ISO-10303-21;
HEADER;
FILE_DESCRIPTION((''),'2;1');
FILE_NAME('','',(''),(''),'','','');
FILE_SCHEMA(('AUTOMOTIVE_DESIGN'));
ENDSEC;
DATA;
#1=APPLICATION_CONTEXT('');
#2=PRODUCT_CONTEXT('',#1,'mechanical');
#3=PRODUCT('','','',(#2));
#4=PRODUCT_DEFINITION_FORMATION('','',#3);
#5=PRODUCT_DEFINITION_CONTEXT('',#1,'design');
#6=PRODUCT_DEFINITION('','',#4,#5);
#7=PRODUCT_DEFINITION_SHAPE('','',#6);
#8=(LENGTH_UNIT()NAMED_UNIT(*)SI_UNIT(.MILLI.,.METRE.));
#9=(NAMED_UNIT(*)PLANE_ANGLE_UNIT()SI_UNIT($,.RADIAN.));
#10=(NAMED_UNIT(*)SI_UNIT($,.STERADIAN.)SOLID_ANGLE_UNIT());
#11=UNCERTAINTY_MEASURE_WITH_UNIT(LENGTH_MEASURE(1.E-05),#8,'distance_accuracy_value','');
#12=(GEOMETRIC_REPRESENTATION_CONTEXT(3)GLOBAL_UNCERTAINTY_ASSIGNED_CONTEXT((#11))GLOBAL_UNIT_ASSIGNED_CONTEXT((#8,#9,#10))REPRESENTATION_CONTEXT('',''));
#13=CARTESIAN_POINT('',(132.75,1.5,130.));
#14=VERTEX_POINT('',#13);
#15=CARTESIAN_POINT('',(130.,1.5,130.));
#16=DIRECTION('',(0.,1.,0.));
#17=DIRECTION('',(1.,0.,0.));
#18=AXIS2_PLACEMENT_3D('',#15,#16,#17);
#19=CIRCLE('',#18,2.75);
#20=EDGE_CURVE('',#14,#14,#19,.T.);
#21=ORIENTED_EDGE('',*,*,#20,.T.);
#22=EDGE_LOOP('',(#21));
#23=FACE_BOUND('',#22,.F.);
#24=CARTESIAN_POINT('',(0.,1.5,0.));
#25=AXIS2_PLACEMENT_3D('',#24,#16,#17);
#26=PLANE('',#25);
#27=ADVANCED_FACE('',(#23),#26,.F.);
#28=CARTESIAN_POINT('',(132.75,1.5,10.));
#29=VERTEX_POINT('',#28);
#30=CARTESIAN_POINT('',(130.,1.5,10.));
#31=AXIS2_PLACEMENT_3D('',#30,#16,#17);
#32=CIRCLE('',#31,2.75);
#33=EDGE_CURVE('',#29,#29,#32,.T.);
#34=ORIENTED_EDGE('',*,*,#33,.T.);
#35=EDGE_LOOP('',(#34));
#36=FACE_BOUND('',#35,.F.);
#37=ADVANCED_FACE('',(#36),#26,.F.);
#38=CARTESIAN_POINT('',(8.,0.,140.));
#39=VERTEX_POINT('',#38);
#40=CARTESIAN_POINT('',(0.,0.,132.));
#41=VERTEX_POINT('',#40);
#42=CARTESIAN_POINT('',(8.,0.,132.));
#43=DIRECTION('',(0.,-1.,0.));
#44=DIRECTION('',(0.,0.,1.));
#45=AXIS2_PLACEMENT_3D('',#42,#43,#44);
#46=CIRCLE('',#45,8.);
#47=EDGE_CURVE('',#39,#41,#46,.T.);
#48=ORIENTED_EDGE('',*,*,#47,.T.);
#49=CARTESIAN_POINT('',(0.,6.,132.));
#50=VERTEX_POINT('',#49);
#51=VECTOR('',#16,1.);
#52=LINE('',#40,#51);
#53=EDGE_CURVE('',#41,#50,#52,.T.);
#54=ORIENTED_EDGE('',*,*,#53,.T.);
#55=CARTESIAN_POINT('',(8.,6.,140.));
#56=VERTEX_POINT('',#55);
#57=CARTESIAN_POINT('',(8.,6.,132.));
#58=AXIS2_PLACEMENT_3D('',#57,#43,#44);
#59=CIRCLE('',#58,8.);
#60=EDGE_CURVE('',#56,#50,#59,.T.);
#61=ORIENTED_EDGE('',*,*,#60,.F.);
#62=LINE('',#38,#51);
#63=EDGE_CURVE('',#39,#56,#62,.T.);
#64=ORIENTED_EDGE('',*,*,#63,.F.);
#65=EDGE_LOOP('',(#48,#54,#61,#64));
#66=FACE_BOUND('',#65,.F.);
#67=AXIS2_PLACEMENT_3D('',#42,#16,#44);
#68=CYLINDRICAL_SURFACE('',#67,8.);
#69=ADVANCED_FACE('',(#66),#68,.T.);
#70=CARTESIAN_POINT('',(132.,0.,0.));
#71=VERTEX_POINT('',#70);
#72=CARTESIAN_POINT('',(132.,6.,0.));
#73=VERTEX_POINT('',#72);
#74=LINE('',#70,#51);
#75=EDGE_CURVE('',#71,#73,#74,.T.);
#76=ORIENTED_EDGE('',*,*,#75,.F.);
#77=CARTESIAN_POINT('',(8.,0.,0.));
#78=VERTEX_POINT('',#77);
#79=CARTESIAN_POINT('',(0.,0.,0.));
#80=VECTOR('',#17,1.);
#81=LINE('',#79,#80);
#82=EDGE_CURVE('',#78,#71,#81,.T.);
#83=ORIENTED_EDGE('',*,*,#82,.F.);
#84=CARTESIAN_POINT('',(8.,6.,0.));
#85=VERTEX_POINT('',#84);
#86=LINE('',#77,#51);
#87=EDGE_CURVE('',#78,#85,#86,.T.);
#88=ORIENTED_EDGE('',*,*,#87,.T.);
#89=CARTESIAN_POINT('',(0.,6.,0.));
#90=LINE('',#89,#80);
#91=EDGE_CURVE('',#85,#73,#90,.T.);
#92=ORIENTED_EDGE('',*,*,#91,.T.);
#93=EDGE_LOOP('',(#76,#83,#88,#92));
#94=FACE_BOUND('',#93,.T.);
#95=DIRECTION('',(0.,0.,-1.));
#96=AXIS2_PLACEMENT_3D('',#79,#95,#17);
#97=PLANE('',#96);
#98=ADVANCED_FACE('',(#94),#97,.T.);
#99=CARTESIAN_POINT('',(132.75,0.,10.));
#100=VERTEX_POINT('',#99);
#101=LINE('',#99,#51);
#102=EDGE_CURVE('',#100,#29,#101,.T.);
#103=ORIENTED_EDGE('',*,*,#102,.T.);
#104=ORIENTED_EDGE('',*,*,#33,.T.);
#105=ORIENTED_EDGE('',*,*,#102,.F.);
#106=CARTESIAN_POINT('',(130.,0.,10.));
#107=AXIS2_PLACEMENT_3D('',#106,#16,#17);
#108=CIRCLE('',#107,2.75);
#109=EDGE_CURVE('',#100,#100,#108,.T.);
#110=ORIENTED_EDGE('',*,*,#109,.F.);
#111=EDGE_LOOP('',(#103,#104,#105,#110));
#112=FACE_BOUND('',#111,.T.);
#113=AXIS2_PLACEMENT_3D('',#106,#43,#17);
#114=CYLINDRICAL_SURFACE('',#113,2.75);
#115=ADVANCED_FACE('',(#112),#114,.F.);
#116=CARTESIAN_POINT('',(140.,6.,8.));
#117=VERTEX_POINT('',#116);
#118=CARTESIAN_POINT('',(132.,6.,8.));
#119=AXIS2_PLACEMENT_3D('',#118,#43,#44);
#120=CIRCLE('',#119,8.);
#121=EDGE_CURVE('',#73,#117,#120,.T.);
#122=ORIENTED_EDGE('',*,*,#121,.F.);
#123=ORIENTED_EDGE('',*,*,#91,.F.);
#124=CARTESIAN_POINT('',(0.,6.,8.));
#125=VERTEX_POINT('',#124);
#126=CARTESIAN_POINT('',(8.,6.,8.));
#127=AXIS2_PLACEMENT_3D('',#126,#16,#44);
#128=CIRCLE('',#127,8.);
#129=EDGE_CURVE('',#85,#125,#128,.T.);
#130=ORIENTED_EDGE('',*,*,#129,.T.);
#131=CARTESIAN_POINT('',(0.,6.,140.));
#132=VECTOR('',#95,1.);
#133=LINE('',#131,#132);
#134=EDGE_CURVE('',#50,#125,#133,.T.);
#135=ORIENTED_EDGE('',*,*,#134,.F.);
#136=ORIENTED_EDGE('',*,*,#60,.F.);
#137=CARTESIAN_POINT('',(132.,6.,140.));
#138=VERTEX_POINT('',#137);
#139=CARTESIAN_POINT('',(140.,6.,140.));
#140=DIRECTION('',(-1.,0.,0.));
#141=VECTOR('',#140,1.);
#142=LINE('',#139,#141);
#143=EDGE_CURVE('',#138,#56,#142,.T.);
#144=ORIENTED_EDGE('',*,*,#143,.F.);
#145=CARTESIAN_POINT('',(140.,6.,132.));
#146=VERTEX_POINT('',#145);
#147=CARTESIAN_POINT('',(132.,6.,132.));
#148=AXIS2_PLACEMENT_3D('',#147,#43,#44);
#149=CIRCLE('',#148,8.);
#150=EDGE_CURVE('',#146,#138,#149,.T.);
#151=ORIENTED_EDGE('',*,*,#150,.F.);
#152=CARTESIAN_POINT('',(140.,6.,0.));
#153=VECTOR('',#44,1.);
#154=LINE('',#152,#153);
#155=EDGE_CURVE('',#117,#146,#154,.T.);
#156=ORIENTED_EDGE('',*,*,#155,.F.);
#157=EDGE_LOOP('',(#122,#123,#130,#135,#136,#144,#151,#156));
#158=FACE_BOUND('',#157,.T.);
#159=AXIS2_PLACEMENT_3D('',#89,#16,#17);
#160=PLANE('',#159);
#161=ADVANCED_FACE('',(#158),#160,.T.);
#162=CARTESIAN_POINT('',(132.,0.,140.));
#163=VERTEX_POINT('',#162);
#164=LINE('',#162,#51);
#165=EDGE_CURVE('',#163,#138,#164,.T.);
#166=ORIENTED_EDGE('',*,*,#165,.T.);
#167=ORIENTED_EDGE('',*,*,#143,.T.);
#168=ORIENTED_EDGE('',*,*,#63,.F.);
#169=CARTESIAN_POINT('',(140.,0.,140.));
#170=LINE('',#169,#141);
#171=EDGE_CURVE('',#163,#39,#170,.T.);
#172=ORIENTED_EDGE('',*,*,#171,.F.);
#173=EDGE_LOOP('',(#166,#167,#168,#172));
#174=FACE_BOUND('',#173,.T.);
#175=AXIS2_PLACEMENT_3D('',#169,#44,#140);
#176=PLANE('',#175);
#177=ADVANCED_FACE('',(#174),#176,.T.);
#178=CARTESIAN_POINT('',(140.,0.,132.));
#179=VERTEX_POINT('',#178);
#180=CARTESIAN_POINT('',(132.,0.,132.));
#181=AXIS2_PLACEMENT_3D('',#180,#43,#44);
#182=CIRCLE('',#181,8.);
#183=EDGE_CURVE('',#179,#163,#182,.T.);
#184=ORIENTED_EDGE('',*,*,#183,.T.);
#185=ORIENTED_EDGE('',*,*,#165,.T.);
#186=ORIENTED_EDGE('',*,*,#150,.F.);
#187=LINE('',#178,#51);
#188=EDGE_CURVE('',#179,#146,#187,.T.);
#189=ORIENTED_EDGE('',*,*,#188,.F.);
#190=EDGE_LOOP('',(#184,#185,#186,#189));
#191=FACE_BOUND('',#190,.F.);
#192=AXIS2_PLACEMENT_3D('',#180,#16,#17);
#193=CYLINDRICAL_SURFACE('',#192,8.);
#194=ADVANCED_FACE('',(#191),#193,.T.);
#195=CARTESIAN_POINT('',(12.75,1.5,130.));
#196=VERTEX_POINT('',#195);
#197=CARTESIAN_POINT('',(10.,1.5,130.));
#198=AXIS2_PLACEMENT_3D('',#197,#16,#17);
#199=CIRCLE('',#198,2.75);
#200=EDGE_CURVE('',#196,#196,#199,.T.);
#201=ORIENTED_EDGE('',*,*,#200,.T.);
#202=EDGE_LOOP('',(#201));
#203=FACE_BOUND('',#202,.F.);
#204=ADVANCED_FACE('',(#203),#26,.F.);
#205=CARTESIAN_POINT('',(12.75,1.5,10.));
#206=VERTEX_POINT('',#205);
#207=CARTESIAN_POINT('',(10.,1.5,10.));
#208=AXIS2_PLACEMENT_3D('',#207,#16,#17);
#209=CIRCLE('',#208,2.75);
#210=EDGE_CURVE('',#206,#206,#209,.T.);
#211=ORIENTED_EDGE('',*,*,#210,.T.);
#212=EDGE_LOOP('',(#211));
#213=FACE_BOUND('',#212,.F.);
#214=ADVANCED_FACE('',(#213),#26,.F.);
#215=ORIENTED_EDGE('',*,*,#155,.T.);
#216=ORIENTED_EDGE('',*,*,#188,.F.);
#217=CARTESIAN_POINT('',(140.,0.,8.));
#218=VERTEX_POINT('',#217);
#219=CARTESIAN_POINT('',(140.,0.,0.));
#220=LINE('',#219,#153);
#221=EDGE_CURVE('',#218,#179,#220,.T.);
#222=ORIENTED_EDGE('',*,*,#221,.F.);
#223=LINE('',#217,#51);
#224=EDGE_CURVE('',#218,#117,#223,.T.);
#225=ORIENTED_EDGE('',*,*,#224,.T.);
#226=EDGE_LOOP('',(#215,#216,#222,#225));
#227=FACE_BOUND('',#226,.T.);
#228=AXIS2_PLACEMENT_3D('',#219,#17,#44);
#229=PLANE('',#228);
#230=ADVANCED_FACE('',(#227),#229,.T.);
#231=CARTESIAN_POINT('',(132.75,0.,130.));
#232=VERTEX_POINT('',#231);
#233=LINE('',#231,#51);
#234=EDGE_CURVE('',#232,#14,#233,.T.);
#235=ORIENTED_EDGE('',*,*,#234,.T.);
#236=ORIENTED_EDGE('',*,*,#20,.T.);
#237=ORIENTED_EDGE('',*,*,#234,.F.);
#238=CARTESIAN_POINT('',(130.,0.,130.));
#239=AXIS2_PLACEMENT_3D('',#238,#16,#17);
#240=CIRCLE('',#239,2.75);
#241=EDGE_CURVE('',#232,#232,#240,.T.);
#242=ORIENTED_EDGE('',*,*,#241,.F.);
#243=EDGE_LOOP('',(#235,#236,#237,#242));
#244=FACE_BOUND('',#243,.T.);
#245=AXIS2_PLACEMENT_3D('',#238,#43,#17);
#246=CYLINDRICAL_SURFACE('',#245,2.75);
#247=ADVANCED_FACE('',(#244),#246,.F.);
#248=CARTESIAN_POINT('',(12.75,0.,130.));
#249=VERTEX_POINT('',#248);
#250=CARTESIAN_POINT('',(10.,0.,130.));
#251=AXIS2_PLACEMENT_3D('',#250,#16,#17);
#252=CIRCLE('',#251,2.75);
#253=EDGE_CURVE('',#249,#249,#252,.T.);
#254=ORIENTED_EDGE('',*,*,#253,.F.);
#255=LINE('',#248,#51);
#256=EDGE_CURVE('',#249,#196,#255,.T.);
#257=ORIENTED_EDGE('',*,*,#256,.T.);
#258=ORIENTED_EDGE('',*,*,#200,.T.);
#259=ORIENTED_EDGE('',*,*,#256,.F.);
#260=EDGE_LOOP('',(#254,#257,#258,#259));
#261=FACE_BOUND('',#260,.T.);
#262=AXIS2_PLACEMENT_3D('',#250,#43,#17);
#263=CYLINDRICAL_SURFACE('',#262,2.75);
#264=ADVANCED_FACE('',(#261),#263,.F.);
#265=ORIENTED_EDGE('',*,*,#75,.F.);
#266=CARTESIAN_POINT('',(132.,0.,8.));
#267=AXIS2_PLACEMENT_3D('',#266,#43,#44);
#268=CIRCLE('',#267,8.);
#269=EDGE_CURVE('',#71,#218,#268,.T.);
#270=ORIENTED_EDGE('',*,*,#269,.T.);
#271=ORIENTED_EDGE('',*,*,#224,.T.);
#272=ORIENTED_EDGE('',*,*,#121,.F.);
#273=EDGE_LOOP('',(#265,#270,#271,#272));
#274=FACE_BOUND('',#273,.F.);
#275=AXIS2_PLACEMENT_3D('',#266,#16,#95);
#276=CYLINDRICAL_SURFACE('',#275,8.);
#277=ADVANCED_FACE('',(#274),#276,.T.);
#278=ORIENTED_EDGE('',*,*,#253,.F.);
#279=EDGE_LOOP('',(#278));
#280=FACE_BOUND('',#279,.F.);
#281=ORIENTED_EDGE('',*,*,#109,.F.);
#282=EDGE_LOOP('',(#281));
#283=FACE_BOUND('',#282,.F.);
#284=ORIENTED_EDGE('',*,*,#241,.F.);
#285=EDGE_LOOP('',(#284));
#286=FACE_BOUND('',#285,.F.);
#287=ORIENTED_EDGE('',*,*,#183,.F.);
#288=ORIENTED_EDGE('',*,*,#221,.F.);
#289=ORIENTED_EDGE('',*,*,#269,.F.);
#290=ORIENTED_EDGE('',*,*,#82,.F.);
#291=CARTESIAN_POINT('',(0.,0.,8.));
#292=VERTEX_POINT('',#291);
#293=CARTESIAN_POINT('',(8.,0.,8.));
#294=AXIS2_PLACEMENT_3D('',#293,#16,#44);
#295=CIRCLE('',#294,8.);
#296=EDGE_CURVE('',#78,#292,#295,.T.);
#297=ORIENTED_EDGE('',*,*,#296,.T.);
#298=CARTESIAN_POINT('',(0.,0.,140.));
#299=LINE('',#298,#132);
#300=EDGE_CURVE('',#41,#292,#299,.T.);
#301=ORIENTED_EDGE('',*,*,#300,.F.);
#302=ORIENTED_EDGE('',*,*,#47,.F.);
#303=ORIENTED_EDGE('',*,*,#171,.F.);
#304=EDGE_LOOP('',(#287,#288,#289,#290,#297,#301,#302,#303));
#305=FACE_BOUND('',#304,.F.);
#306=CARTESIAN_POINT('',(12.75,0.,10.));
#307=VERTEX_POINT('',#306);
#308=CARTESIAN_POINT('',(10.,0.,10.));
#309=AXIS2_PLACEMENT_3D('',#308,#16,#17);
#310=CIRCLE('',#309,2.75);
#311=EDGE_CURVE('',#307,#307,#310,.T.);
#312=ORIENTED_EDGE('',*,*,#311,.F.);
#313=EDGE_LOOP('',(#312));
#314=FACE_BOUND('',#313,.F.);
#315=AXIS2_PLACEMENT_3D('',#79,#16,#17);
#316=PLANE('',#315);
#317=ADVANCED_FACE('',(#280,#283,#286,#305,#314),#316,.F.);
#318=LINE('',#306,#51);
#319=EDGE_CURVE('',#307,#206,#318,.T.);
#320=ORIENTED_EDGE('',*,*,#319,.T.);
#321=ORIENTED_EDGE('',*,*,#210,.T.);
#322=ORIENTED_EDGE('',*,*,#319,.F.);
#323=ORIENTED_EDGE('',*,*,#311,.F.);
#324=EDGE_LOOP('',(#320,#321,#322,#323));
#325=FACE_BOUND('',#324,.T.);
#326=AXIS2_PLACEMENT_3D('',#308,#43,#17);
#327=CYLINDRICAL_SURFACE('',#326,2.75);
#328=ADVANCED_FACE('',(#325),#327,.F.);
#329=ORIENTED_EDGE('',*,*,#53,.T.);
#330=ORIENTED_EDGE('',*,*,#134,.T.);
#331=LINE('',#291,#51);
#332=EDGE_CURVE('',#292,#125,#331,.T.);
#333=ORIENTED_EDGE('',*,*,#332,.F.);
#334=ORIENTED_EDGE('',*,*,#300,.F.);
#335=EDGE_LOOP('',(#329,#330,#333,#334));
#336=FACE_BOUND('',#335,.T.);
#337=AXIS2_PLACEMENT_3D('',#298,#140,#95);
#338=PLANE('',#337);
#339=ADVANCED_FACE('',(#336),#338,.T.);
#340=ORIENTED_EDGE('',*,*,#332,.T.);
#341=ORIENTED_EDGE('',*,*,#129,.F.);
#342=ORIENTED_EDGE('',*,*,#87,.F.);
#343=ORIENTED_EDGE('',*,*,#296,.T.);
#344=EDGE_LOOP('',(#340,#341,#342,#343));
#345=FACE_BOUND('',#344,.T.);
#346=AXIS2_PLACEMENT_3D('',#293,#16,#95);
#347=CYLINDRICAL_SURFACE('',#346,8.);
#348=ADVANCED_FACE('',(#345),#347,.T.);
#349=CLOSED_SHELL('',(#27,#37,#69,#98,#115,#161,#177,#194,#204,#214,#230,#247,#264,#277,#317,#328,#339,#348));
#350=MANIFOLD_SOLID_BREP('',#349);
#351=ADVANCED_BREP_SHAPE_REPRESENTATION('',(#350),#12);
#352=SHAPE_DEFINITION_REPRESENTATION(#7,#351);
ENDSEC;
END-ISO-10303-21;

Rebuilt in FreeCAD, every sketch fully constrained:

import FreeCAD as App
import Part
import Sketcher
from FreeCAD import Vector
Q = App.Units.Quantity


def edges_at(feature, points):
    """Names of the edges that pass closest to the given points."""
    edges = feature.Shape.Edges
    near = lambda p: min(range(len(edges)), key=lambda i: edges[i].distToShape(Part.Vertex(*p))[0])
    return sorted({f"Edge{near(p) + 1}" for p in points})

doc = App.newDocument("Part")
body = doc.addObject("PartDesign::Body", "Body")

sketch1 = body.newObject("Sketcher::SketchObject", "Sketch")
sketch1.AttachmentSupport = (doc.getObject("XZ_Plane"), [""])
sketch1.MapMode = "FlatFace"
sketch1.addGeometry([
    Part.LineSegment(Vector(140, 0, 0), Vector(0, 0, 0)),
    Part.LineSegment(Vector(0, 0, 0), Vector(0, 140, 0)),
    Part.LineSegment(Vector(0, 140, 0), Vector(140, 140, 0)),
    Part.LineSegment(Vector(140, 140, 0), Vector(140, 0, 0)),
], False)
sketch1.addConstraint([
    Sketcher.Constraint("Coincident", 0, 2, 1, 1),
    Sketcher.Constraint("Coincident", 1, 2, 2, 1),
    Sketcher.Constraint("Coincident", 2, 2, 3, 1),
    Sketcher.Constraint("Coincident", 3, 2, 0, 1),
    Sketcher.Constraint("Horizontal", 0),
    Sketcher.Constraint("Vertical", 1),
    Sketcher.Constraint("Horizontal", 2),
    Sketcher.Constraint("Vertical", 3),
    Sketcher.Constraint("Coincident", 0, 2, -1, 1),
    Sketcher.Constraint("Equal", 2, 1),
    Sketcher.Constraint("DistanceX", 0, 2, 0, 1, Q("140 mm")),
])
pad1 = body.newObject("PartDesign::Pad", "Pad")
pad1.Profile = sketch1
pad1.Length = 6
pad1.Reversed = True
doc.recompute()

fillet = body.newObject("PartDesign::Fillet", "Fillet")
fillet.Base = (pad1, edges_at(pad1, [
    (0, 3, 140),
    (140, 3, 140),
    (140, 3, 0),
    (0, 3, 0),
]))
fillet.Radius = 8

sketch2 = body.newObject("Sketcher::SketchObject", "Sketch001")
sketch2.AttachmentSupport = (doc.getObject("XZ_Plane"), [""])
sketch2.MapMode = "FlatFace"
sketch2.addGeometry([
    Part.Circle(Vector(10, 130, 0), Vector(0, 0, 1), 2.8),
    Part.Circle(Vector(130, 130, 0), Vector(0, 0, 1), 2.8),
    Part.Circle(Vector(10, 10, 0), Vector(0, 0, 1), 2.8),
    Part.Circle(Vector(130, 10, 0), Vector(0, 0, 1), 2.8),
], False)
sketch2.addConstraint([
    Sketcher.Constraint("Equal", 0, 1),
    Sketcher.Constraint("Equal", 1, 2),
    Sketcher.Constraint("Equal", 2, 3),
    Sketcher.Constraint("Horizontal", 0, 3, 1, 3),
    Sketcher.Constraint("Horizontal", 2, 3, 3, 3),
    Sketcher.Constraint("Vertical", 0, 3, 2, 3),
    Sketcher.Constraint("Vertical", 1, 3, 3, 3),
    Sketcher.Constraint("Diameter", 0, Q("5.5 mm")),
    Sketcher.Constraint("DistanceX", -1, 1, 0, 3, Q("10 mm")),
    Sketcher.Constraint("DistanceY", -1, 1, 2, 3, Q("10 mm")),
    Sketcher.Constraint("DistanceY", -1, 1, 0, 3, Q("130 mm")),
    Sketcher.Constraint("DistanceX", -1, 1, 1, 3, Q("130 mm")),
])
pocket1 = body.newObject("PartDesign::Pocket", "Pocket")
pocket1.Profile = sketch2
pocket1.Length = 1.5

doc.recompute()
